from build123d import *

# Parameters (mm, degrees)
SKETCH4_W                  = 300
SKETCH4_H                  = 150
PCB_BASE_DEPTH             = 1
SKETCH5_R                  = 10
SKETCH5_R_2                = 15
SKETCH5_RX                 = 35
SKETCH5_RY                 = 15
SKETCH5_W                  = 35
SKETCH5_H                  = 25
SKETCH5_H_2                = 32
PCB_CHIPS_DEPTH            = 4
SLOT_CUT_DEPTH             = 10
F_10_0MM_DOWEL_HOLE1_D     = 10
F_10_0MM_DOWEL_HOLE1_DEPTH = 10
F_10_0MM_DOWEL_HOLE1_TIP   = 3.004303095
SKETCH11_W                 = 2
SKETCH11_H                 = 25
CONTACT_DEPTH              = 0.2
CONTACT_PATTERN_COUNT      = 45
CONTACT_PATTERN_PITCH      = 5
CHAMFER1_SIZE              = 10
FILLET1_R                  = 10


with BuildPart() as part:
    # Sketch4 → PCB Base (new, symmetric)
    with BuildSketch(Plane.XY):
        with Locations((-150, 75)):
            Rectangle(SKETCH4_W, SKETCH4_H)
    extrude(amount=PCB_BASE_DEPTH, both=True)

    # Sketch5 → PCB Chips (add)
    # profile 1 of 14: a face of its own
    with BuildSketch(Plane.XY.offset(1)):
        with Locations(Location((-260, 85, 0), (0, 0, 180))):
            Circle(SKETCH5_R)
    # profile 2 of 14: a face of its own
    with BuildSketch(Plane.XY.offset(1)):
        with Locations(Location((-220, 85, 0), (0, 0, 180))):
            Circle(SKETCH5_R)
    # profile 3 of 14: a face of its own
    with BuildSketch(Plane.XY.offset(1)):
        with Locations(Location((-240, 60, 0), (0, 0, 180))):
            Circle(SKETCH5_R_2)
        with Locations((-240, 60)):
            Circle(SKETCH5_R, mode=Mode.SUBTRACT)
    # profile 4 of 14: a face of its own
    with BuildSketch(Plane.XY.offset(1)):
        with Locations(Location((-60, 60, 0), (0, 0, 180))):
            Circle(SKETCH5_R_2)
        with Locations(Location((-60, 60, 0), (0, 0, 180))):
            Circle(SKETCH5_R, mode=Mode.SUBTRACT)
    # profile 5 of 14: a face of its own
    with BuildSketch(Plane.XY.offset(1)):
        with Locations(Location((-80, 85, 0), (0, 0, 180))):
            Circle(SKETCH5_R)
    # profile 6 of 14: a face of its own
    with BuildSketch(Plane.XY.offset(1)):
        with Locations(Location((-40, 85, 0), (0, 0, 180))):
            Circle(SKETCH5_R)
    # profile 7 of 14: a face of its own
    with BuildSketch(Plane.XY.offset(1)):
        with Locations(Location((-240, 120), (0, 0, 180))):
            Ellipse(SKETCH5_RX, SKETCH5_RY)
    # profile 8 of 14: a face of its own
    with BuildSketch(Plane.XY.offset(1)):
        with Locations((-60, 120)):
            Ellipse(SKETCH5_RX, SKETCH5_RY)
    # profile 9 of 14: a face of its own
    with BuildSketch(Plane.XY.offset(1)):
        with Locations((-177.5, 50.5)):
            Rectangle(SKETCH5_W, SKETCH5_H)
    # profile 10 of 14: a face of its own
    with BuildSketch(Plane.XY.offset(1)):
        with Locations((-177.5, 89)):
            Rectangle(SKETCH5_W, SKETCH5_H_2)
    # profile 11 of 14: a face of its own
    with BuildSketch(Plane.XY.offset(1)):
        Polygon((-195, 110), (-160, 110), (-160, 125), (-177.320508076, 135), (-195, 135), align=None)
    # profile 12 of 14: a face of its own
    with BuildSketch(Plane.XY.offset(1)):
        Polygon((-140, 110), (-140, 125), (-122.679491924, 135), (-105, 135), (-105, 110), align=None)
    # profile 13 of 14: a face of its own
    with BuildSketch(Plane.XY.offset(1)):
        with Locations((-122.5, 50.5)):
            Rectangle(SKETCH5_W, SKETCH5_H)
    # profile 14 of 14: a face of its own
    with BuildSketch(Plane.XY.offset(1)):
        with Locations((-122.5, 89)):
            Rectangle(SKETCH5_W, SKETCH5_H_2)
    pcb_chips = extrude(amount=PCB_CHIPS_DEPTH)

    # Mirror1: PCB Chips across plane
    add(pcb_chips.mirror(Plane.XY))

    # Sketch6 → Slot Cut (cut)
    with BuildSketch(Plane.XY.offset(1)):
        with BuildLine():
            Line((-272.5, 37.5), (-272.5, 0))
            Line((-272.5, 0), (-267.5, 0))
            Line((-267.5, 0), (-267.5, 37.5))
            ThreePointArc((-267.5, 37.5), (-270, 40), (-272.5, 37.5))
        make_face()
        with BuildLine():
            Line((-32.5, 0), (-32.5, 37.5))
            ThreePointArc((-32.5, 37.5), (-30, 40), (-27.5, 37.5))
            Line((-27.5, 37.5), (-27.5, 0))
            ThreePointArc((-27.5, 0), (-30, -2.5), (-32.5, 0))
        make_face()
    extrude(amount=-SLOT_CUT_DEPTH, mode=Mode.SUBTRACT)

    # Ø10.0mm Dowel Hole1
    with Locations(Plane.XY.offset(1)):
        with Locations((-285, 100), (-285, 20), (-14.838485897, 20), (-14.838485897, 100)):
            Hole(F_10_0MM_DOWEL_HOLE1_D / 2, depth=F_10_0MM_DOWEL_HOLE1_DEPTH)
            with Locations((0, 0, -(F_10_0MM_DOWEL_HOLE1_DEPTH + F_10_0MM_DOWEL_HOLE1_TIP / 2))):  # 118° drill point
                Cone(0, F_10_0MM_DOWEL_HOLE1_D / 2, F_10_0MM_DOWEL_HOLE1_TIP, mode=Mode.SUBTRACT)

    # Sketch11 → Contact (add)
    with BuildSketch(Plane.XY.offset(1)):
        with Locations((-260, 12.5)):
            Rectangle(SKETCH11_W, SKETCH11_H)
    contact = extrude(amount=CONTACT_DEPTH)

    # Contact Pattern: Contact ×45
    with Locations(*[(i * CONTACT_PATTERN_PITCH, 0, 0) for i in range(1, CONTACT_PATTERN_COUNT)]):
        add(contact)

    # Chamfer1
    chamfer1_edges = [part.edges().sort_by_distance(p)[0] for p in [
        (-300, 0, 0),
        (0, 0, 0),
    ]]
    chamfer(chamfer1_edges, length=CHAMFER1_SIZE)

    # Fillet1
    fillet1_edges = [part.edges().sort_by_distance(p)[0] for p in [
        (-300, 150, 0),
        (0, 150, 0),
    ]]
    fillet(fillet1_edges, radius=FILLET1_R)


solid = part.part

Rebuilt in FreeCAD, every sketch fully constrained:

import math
import FreeCAD as App
import Part
import Sketcher

V = App.Vector
Q = App.Units.Quantity


def edges_at(feature, points):
    """Names of the edges that pass closest to the given points."""
    edges = feature.Shape.Edges
    near = lambda p: min(range(len(edges)), key=lambda i: edges[i].distToShape(Part.Vertex(*p))[0])
    return sorted({f"Edge{near(p) + 1}" for p in points})

doc = App.newDocument("Part")
body = doc.addObject("PartDesign::Body", "Body")

# Sketch on XY plane
sketch1 = body.newObject("Sketcher::SketchObject", "Sketch")
sketch1.AttachmentSupport = (doc.getObject("XY_Plane"), [""])
sketch1.MapMode = "FlatFace"
sketch1.addGeometry(Part.LineSegment(V(-300, 150, 0), V(-300, 0, 0)), False)
sketch1.addGeometry(Part.LineSegment(V(-300, 0, 0), V(0, 0, 0)), False)
sketch1.addGeometry(Part.LineSegment(V(0, 0, 0), V(0, 150, 0)), False)
sketch1.addGeometry(Part.LineSegment(V(0, 150, 0), V(-300, 150, 0)), False)
sketch1.addConstraint(Sketcher.Constraint("Coincident", 0, 2, 1, 1))
sketch1.addConstraint(Sketcher.Constraint("Coincident", 1, 2, 2, 1))
sketch1.addConstraint(Sketcher.Constraint("Coincident", 2, 2, 3, 1))
sketch1.addConstraint(Sketcher.Constraint("Coincident", 3, 2, 0, 1))
sketch1.addConstraint(Sketcher.Constraint("Vertical", 0))
sketch1.addConstraint(Sketcher.Constraint("Horizontal", 1))
sketch1.addConstraint(Sketcher.Constraint("Vertical", 2))
sketch1.addConstraint(Sketcher.Constraint("Horizontal", 3))
sketch1.addConstraint(Sketcher.Constraint("Coincident", 1, 2, -1, 1))
sketch1.addConstraint(Sketcher.Constraint("DistanceX", 1, 1, 1, 2, Q("300 mm")))
sketch1.addConstraint(Sketcher.Constraint("DistanceY", 0, 2, 0, 1, Q("150 mm")))
pad1 = body.newObject("PartDesign::Pad", "Pad")
pad1.Profile = sketch1
pad1.Length = 2
pad1.Midplane = True

# Sketch on XY plane
sketch2 = body.newObject("Sketcher::SketchObject", "Sketch001")
sketch2.AttachmentSupport = (doc.getObject("XY_Plane"), [""])
sketch2.MapMode = "FlatFace"
sketch2.AttachmentOffset = App.Placement(V(0, 0, 1), App.Rotation())
sketch2.addGeometry(Part.Circle(V(-260, 85, 0), V(0, 0, 1), 10), False)
sketch2.addGeometry(Part.Circle(V(-220, 85, 0), V(0, 0, 1), 10), False)
sketch2.addGeometry(Part.Circle(V(-240, 60, 0), V(0, 0, 1), 15), False)
sketch2.addGeometry(Part.Circle(V(-240, 60, 0), V(0, 0, 1), 10), False)
sketch2.addGeometry(Part.Circle(V(-60, 60, 0), V(0, 0, 1), 15), False)
sketch2.addGeometry(Part.Circle(V(-60, 60, 0), V(0, 0, 1), 10), False)
sketch2.addGeometry(Part.Circle(V(-80, 85, 0), V(0, 0, 1), 10), False)
sketch2.addGeometry(Part.Circle(V(-40, 85, 0), V(0, 0, 1), 10), False)
sketch2.addGeometry(Part.Ellipse(V(-275, 120, 0), V(-240, 105, 0), V(-240, 120, 0)), False)
sketch2.addGeometry(Part.Ellipse(V(-25, 120, 0), V(-60, 135, 0), V(-60, 120, 0)), False)
sketch2.addGeometry(Part.LineSegment(V(-195, 63, 0), V(-195, 38, 0)), False)
sketch2.addGeometry(Part.LineSegment(V(-195, 38, 0), V(-160, 38, 0)), False)
sketch2.addGeometry(Part.LineSegment(V(-160, 38, 0), V(-160, 63, 0)), False)
sketch2.addGeometry(Part.LineSegment(V(-160, 63, 0), V(-195, 63, 0)), False)
sketch2.addGeometry(Part.LineSegment(V(-195, 105, 0), V(-195, 73, 0)), False)
sketch2.addGeometry(Part.LineSegment(V(-195, 73, 0), V(-160, 73, 0)), False)
sketch2.addGeometry(Part.LineSegment(V(-160, 73, 0), V(-160, 105, 0)), False)
sketch2.addGeometry(Part.LineSegment(V(-160, 105, 0), V(-195, 105, 0)), False)
sketch2.addGeometry(Part.LineSegment(V(-195, 110, 0), V(-160, 110, 0)), False)
sketch2.addGeometry(Part.LineSegment(V(-160, 110, 0), V(-160, 125, 0)), False)
sketch2.addGeometry(Part.LineSegment(V(-160, 125, 0), V(-177.320508, 135, 0)), False)
sketch2.addGeometry(Part.LineSegment(V(-177.320508, 135, 0), V(-195, 135, 0)), False)
sketch2.addGeometry(Part.LineSegment(V(-195, 135, 0), V(-195, 110, 0)), False)
sketch2.addGeometry(Part.LineSegment(V(-140, 125, 0), V(-140, 110, 0)), False)
sketch2.addGeometry(Part.LineSegment(V(-140, 110, 0), V(-105, 110, 0)), False)
sketch2.addGeometry(Part.LineSegment(V(-105, 110, 0), V(-105, 135, 0)), False)
sketch2.addGeometry(Part.LineSegment(V(-105, 135, 0), V(-122.679492, 135, 0)), False)
sketch2.addGeometry(Part.LineSegment(V(-122.679492, 135, 0), V(-140, 125, 0)), False)
sketch2.addGeometry(Part.LineSegment(V(-140, 63, 0), V(-140, 38, 0)), False)
sketch2.addGeometry(Part.LineSegment(V(-140, 38, 0), V(-105, 38, 0)), False)
sketch2.addGeometry(Part.LineSegment(V(-105, 38, 0), V(-105, 63, 0)), False)
sketch2.addGeometry(Part.LineSegment(V(-105, 63, 0), V(-140, 63, 0)), False)
sketch2.addGeometry(Part.LineSegment(V(-140, 105, 0), V(-140, 73, 0)), False)
sketch2.addGeometry(Part.LineSegment(V(-140, 73, 0), V(-105, 73, 0)), False)
sketch2.addGeometry(Part.LineSegment(V(-105, 73, 0), V(-105, 105, 0)), False)
sketch2.addGeometry(Part.LineSegment(V(-105, 105, 0), V(-140, 105, 0)), False)
sketch2.addConstraint(Sketcher.Constraint("Block", 8))
sketch2.addConstraint(Sketcher.Constraint("Block", 9))
sketch2.addConstraint(Sketcher.Constraint("Coincident", 10, 2, 11, 1))
sketch2.addConstraint(Sketcher.Constraint("Coincident", 11, 2, 12, 1))
sketch2.addConstraint(Sketcher.Constraint("Coincident", 12, 2, 13, 1))
sketch2.addConstraint(Sketcher.Constraint("Coincident", 13, 2, 10, 1))
sketch2.addConstraint(Sketcher.Constraint("Coincident", 14, 2, 15, 1))
sketch2.addConstraint(Sketcher.Constraint("Coincident", 15, 2, 16, 1))
sketch2.addConstraint(Sketcher.Constraint("Coincident", 16, 2, 17, 1))
sketch2.addConstraint(Sketcher.Constraint("Coincident", 17, 2, 14, 1))
sketch2.addConstraint(Sketcher.Constraint("Coincident", 18, 2, 19, 1))
sketch2.addConstraint(Sketcher.Constraint("Coincident", 19, 2, 20, 1))
sketch2.addConstraint(Sketcher.Constraint("Coincident", 20, 2, 21, 1))
sketch2.addConstraint(Sketcher.Constraint("Coincident", 21, 2, 22, 1))
sketch2.addConstraint(Sketcher.Constraint("Coincident", 22, 2, 18, 1))
sketch2.addConstraint(Sketcher.Constraint("Coincident", 23, 2, 24, 1))
sketch2.addConstraint(Sketcher.Constraint("Coincident", 24, 2, 25, 1))
sketch2.addConstraint(Sketcher.Constraint("Coincident", 25, 2, 26, 1))
sketch2.addConstraint(Sketcher.Constraint("Coincident", 26, 2, 27, 1))
sketch2.addConstraint(Sketcher.Constraint("Coincident", 27, 2, 23, 1))
sketch2.addConstraint(Sketcher.Constraint("Coincident", 28, 2, 29, 1))
sketch2.addConstraint(Sketcher.Constraint("Coincident", 29, 2, 30, 1))
sketch2.addConstraint(Sketcher.Constraint("Coincident", 30, 2, 31, 1))
sketch2.addConstraint(Sketcher.Constraint("Coincident", 31, 2, 28, 1))
sketch2.addConstraint(Sketcher.Constraint("Coincident", 32, 2, 33, 1))
sketch2.addConstraint(Sketcher.Constraint("Coincident", 33, 2, 34, 1))
sketch2.addConstraint(Sketcher.Constraint("Coincident", 34, 2, 35, 1))
sketch2.addConstraint(Sketcher.Constraint("Coincident", 35, 2, 32, 1))
sketch2.addConstraint(Sketcher.Constraint("Vertical", 10))
sketch2.addConstraint(Sketcher.Constraint("Horizontal", 11))
sketch2.addConstraint(Sketcher.Constraint("Vertical", 12))
sketch2.addConstraint(Sketcher.Constraint("Horizontal", 13))
sketch2.addConstraint(Sketcher.Constraint("Vertical", 14))
sketch2.addConstraint(Sketcher.Constraint("Horizontal", 15))
sketch2.addConstraint(Sketcher.Constraint("Vertical", 16))
sketch2.addConstraint(Sketcher.Constraint("Horizontal", 17))
sketch2.addConstraint(Sketcher.Constraint("Horizontal", 18))
sketch2.addConstraint(Sketcher.Constraint("Vertical", 19))
sketch2.addConstraint(Sketcher.Constraint("Horizontal", 21))
sketch2.addConstraint(Sketcher.Constraint("Vertical", 22))
sketch2.addConstraint(Sketcher.Constraint("Vertical", 23))
sketch2.addConstraint(Sketcher.Constraint("Horizontal", 24))
sketch2.addConstraint(Sketcher.Constraint("Vertical", 25))
sketch2.addConstraint(Sketcher.Constraint("Horizontal", 26))
sketch2.addConstraint(Sketcher.Constraint("Vertical", 28))
sketch2.addConstraint(Sketcher.Constraint("Horizontal", 29))
sketch2.addConstraint(Sketcher.Constraint("Vertical", 30))
sketch2.addConstraint(Sketcher.Constraint("Horizontal", 31))
sketch2.addConstraint(Sketcher.Constraint("Vertical", 32))
sketch2.addConstraint(Sketcher.Constraint("Horizontal", 33))
sketch2.addConstraint(Sketcher.Constraint("Vertical", 34))
sketch2.addConstraint(Sketcher.Constraint("Horizontal", 35))
sketch2.addConstraint(Sketcher.Constraint("Coincident", 3, 3, 2, 3))
sketch2.addConstraint(Sketcher.Constraint("Coincident", 5, 3, 4, 3))
sketch2.addConstraint(Sketcher.Constraint("Equal", 0, 1))
sketch2.addConstraint(Sketcher.Constraint("Equal", 1, 3))
sketch2.addConstraint(Sketcher.Constraint("Equal", 2, 4))
sketch2.addConstraint(Sketcher.Constraint("Equal", 3, 5))
sketch2.addConstraint(Sketcher.Constraint("Equal", 5, 6))
sketch2.addConstraint(Sketcher.Constraint("Equal", 6, 7))
sketch2.addConstraint(Sketcher.Constraint("Horizontal", 0, 3, 1, 3))
sketch2.addConstraint(Sketcher.Constraint("Horizontal", 3, 3, 4, 3))
sketch2.addConstraint(Sketcher.Constraint("Horizontal", 1, 3, 6, 3))
sketch2.addConstraint(Sketcher.Constraint("Horizontal", 6, 3, 7, 3))
sketch2.addConstraint(Sketcher.Constraint("Horizontal", 22, 2, 23, 2))
sketch2.addConstraint(Sketcher.Constraint("Horizontal", 21, 2, 25, 2))
sketch2.addConstraint(Sketcher.Constraint("Horizontal", 19, 2, 27, 2))
sketch2.addConstraint(Sketcher.Constraint("Horizontal", 11, 2, 28, 2))
sketch2.addConstraint(Sketcher.Constraint("Horizontal", 13, 2, 30, 2))
sketch2.addConstraint(Sketcher.Constraint("Horizontal", 15, 2, 32, 2))
sketch2.addConstraint(Sketcher.Constraint("Horizontal", 17, 2, 34, 2))
sketch2.addConstraint(Sketcher.Constraint("Vertical", 13, 2, 14, 2))
sketch2.addConstraint(Sketcher.Constraint("Vertical", 12, 2, 15, 2))
sketch2.addConstraint(Sketcher.Constraint("Vertical", 16, 2, 18, 2))
sketch2.addConstraint(Sketcher.Constraint("Vertical", 17, 2, 21, 2))
sketch2.addConstraint(Sketcher.Constraint("Vertical", 27, 2, 28, 2))
sketch2.addConstraint(Sketcher.Constraint("Vertical", 25, 2, 29, 2))
sketch2.addConstraint(Sketcher.Constraint("Vertical", 31, 2, 32, 2))
sketch2.addConstraint(Sketcher.Constraint("Vertical", 30, 2, 33, 2))
sketch2.addConstraint(Sketcher.Constraint("Equal", 18, 24))
sketch2.addConstraint(Sketcher.Constraint("Equal", 21, 26))
sketch2.addConstraint(Sketcher.Constraint("Equal", 12, 22))
sketch2.addConstraint(Sketcher.Constraint("Diameter", 0, Q("20 mm")))
sketch2.addConstraint(Sketcher.Constraint("Diameter", 2, Q("30 mm")))
sketch2.addConstraint(Sketcher.Constraint("DistanceX", 11, 1, 11, 2, Q("35 mm")))
sketch2.addConstraint(Sketcher.Constraint("DistanceY", 10, 2, 10, 1, Q("25 mm")))
sketch2.addConstraint(Sketcher.Constraint("DistanceY", 14, 2, 14, 1, Q("32 mm")))
sketch2.addConstraint(Sketcher.Constraint("DistanceY", 19, 1, 19, 2, Q("15 mm")))
sketch2.addConstraint(Sketcher.Constraint("Angle", 20, Q("150 deg")))
sketch2.addConstraint(Sketcher.Constraint("DistanceX", 0, 3, -1, 1, Q("260 mm")))
sketch2.addConstraint(Sketcher.Constraint("DistanceY", -1, 1, 0, 3, Q("85 mm")))
sketch2.addConstraint(Sketcher.Constraint("DistanceX", 1, 3, -1, 1, Q("220 mm")))
sketch2.addConstraint(Sketcher.Constraint("DistanceX", 2, 3, -1, 1, Q("240 mm")))
sketch2.addConstraint(Sketcher.Constraint("DistanceY", -1, 1, 2, 3, Q("60 mm")))
sketch2.addConstraint(Sketcher.Constraint("DistanceX", 4, 3, -1, 1, Q("60 mm")))
sketch2.addConstraint(Sketcher.Constraint("DistanceX", 6, 3, -1, 1, Q("80 mm")))
sketch2.addConstraint(Sketcher.Constraint("DistanceX", 7, 3, -1, 1, Q("40 mm")))
sketch2.addConstraint(Sketcher.Constraint("DistanceX", 10, 2, -1, 1, Q("195 mm")))
sketch2.addConstraint(Sketcher.Constraint("DistanceY", -1, 1, 10, 2, Q("38 mm")))
sketch2.addConstraint(Sketcher.Constraint("DistanceY", -1, 1, 14, 2, Q("73 mm")))
sketch2.addConstraint(Sketcher.Constraint("DistanceY", -1, 1, 18, 2, Q("110 mm")))
sketch2.addConstraint(Sketcher.Constraint("DistanceX", 23, 2, -1, 1, Q("140 mm")))
pad2 = body.newObject("PartDesign::Pad", "Pad001")
pad2.Profile = sketch2
pad2.Length = 4
doc.recompute()

mirrored = body.newObject("PartDesign::Mirrored", "Mirrored")
mirrored.Originals = [pad2]
mirrored.MirrorPlane = (doc.getObject("XY_Plane"), [""])
body.Tip = mirrored

# Sketch on XY plane
sketch3 = body.newObject("Sketcher::SketchObject", "Sketch002")
sketch3.AttachmentSupport = (doc.getObject("XY_Plane"), [""])
sketch3.MapMode = "FlatFace"
sketch3.AttachmentOffset = App.Placement(V(0, 0, 1), App.Rotation())
sketch3.addGeometry(Part.LineSegment(V(-272.5, 37.5, 0), V(-272.5, 0, 0)), False)
sketch3.addGeometry(Part.LineSegment(V(-272.5, 0, 0), V(-267.5, 0, 0)), False)
sketch3.addGeometry(Part.LineSegment(V(-267.5, 0, 0), V(-267.5, 37.5, 0)), False)
sketch3.addGeometry(Part.ArcOfCircle(Part.Circle(V(-270, 37.5, 0), V(0, 0, 1), 2.5), math.radians(0), math.radians(180)), False)
sketch3.addGeometry(Part.LineSegment(V(-32.5, 37.5, 0), V(-32.5, 0, 0)), False)
sketch3.addGeometry(Part.ArcOfCircle(Part.Circle(V(-30, 0, 0), V(0, 0, 1), 2.5), math.radians(180), math.radians(360)), False)
sketch3.addGeometry(Part.LineSegment(V(-27.5, 0, 0), V(-27.5, 37.5, 0)), False)
sketch3.addGeometry(Part.ArcOfCircle(Part.Circle(V(-30, 37.5, 0), V(0, 0, 1), 2.5), math.radians(0), math.radians(180)), False)
sketch3.addConstraint(Sketcher.Constraint("Coincident", 0, 2, 1, 1))
sketch3.addConstraint(Sketcher.Constraint("Coincident", 1, 2, 2, 1))
sketch3.addConstraint(Sketcher.Constraint("Tangent", 2, 2, 3, 1))
sketch3.addConstraint(Sketcher.Constraint("Tangent", 3, 2, 0, 1))
sketch3.addConstraint(Sketcher.Constraint("Tangent", 4, 2, 5, 1))
sketch3.addConstraint(Sketcher.Constraint("Tangent", 5, 2, 6, 1))
sketch3.addConstraint(Sketcher.Constraint("Tangent", 6, 2, 7, 1))
sketch3.addConstraint(Sketcher.Constraint("Tangent", 7, 2, 4, 1))
sketch3.addConstraint(Sketcher.Constraint("Vertical", 0))
sketch3.addConstraint(Sketcher.Constraint("Horizontal", 1))
sketch3.addConstraint(Sketcher.Constraint("Vertical", 2))
sketch3.addConstraint(Sketcher.Constraint("Vertical", 4))
sketch3.addConstraint(Sketcher.Constraint("Vertical", 6))
sketch3.addConstraint(Sketcher.Constraint("Equal", 3, 5))
sketch3.addConstraint(Sketcher.Constraint("PointOnObject", 5, 3, -1))
sketch3.addConstraint(Sketcher.Constraint("PointOnObject", 0, 2, -1))
sketch3.addConstraint(Sketcher.Constraint("Horizontal", 3, 3, 7, 3))
sketch3.addConstraint(Sketcher.Constraint("Radius", 3, Q("2.5 mm")))
sketch3.addConstraint(Sketcher.Constraint("DistanceY", 0, 2, 0, 1, Q("37.5 mm")))
sketch3.addConstraint(Sketcher.Constraint("DistanceX", 3, 3, -1, 1, Q("270 mm")))
sketch3.addConstraint(Sketcher.Constraint("DistanceX", 5, 3, -1, 1, Q("30 mm")))
pocket1 = body.newObject("PartDesign::Pocket", "Pocket")
pocket1.Profile = sketch3
pocket1.Length = 10

# Sketch on XY plane
sketch4 = body.newObject("Sketcher::SketchObject", "Sketch003")
sketch4.AttachmentSupport = (doc.getObject("XY_Plane"), [""])
sketch4.MapMode = "FlatFace"
sketch4.AttachmentOffset = App.Placement(V(0, 0, 1), App.Rotation())
sketch4.addGeometry(Part.Circle(V(-285, 100, 0), V(0, 0, 1), 5), False)
sketch4.addGeometry(Part.Circle(V(-285, 20, 0), V(0, 0, 1), 5), False)
sketch4.addGeometry(Part.Circle(V(-15, 20, 0), V(0, 0, 1), 5), False)
sketch4.addGeometry(Part.Circle(V(-15, 100, 0), V(0, 0, 1), 5), False)
sketch4.addConstraint(Sketcher.Constraint("Equal", 0, 1))
sketch4.addConstraint(Sketcher.Constraint("Equal", 1, 2))
sketch4.addConstraint(Sketcher.Constraint("Equal", 2, 3))
sketch4.addConstraint(Sketcher.Constraint("Horizontal", 1, 3, 2, 3))
sketch4.addConstraint(Sketcher.Constraint("Horizontal", 0, 3, 3, 3))
sketch4.addConstraint(Sketcher.Constraint("Vertical", 0, 3, 1, 3))
sketch4.addConstraint(Sketcher.Constraint("Vertical", 2, 3, 3, 3))
sketch4.addConstraint(Sketcher.Constraint("Diameter", 0, Q("10 mm")))
sketch4.addConstraint(Sketcher.Constraint("DistanceX", 0, 3, -1, 1, Q("285 mm")))
sketch4.addConstraint(Sketcher.Constraint("DistanceY", -1, 1, 0, 3, Q("100 mm")))
sketch4.addConstraint(Sketcher.Constraint("DistanceY", -1, 1, 1, 3, Q("20 mm")))
sketch4.addConstraint(Sketcher.Constraint("DistanceX", 2, 3, -1, 1, Q("14.838486 mm")))
doc.recompute()
hole = body.newObject("PartDesign::Hole", "Hole")
hole.Profile = sketch4
hole.ThreadType = "None"
hole.Diameter = 10
hole.DepthType = "Dimension"
hole.Depth = 10
hole.DrillPoint = "Angled"
hole.DrillPointAngle = 118

# Sketch on XY plane
sketch5 = body.newObject("Sketcher::SketchObject", "Sketch004")
sketch5.AttachmentSupport = (doc.getObject("XY_Plane"), [""])
sketch5.MapMode = "FlatFace"
sketch5.AttachmentOffset = App.Placement(V(0, 0, 1), App.Rotation())
sketch5.addGeometry(Part.LineSegment(V(-261, 25, 0), V(-261, 0, 0)), False)
sketch5.addGeometry(Part.LineSegment(V(-261, 0, 0), V(-259, 0, 0)), False)
sketch5.addGeometry(Part.LineSegment(V(-259, 0, 0), V(-259, 25, 0)), False)
sketch5.addGeometry(Part.LineSegment(V(-259, 25, 0), V(-261, 25, 0)), False)
sketch5.addConstraint(Sketcher.Constraint("Coincident", 0, 2, 1, 1))
sketch5.addConstraint(Sketcher.Constraint("Coincident", 1, 2, 2, 1))
sketch5.addConstraint(Sketcher.Constraint("Coincident", 2, 2, 3, 1))
sketch5.addConstraint(Sketcher.Constraint("Coincident", 3, 2, 0, 1))
sketch5.addConstraint(Sketcher.Constraint("Vertical", 0))
sketch5.addConstraint(Sketcher.Constraint("Horizontal", 1))
sketch5.addConstraint(Sketcher.Constraint("Vertical", 2))
sketch5.addConstraint(Sketcher.Constraint("Horizontal", 3))
sketch5.addConstraint(Sketcher.Constraint("PointOnObject", 0, 2, -1))
sketch5.addConstraint(Sketcher.Constraint("DistanceX", 1, 1, 1, 2, Q("2 mm")))
sketch5.addConstraint(Sketcher.Constraint("DistanceY", 0, 2, 0, 1, Q("25 mm")))
sketch5.addConstraint(Sketcher.Constraint("DistanceX", 0, 2, -1, 1, Q("261 mm")))
pad3 = body.newObject("PartDesign::Pad", "Pad002")
pad3.Profile = sketch5
pad3.Length = 0.2
doc.recompute()

linearpattern = body.newObject("PartDesign::LinearPattern", "LinearPattern")
linearpattern.Originals = [pad3]
linearpattern.Direction = (doc.getObject("X_Axis"), [""])
linearpattern.Mode = "offset"
linearpattern.Offset = 5
linearpattern.Occurrences = 45
body.Tip = linearpattern
doc.recompute()

chamfer = body.newObject("PartDesign::Chamfer", "Chamfer")
chamfer.Base = (linearpattern, edges_at(linearpattern, [(-300, 0, 0), (0, 0, 0)]))
chamfer.Size = 10
doc.recompute()

fillet = body.newObject("PartDesign::Fillet", "Fillet")
fillet.Base = (chamfer, edges_at(chamfer, [(-300, 150, 0), (0, 150, 0)]))
fillet.Radius = 10

doc.recompute()
